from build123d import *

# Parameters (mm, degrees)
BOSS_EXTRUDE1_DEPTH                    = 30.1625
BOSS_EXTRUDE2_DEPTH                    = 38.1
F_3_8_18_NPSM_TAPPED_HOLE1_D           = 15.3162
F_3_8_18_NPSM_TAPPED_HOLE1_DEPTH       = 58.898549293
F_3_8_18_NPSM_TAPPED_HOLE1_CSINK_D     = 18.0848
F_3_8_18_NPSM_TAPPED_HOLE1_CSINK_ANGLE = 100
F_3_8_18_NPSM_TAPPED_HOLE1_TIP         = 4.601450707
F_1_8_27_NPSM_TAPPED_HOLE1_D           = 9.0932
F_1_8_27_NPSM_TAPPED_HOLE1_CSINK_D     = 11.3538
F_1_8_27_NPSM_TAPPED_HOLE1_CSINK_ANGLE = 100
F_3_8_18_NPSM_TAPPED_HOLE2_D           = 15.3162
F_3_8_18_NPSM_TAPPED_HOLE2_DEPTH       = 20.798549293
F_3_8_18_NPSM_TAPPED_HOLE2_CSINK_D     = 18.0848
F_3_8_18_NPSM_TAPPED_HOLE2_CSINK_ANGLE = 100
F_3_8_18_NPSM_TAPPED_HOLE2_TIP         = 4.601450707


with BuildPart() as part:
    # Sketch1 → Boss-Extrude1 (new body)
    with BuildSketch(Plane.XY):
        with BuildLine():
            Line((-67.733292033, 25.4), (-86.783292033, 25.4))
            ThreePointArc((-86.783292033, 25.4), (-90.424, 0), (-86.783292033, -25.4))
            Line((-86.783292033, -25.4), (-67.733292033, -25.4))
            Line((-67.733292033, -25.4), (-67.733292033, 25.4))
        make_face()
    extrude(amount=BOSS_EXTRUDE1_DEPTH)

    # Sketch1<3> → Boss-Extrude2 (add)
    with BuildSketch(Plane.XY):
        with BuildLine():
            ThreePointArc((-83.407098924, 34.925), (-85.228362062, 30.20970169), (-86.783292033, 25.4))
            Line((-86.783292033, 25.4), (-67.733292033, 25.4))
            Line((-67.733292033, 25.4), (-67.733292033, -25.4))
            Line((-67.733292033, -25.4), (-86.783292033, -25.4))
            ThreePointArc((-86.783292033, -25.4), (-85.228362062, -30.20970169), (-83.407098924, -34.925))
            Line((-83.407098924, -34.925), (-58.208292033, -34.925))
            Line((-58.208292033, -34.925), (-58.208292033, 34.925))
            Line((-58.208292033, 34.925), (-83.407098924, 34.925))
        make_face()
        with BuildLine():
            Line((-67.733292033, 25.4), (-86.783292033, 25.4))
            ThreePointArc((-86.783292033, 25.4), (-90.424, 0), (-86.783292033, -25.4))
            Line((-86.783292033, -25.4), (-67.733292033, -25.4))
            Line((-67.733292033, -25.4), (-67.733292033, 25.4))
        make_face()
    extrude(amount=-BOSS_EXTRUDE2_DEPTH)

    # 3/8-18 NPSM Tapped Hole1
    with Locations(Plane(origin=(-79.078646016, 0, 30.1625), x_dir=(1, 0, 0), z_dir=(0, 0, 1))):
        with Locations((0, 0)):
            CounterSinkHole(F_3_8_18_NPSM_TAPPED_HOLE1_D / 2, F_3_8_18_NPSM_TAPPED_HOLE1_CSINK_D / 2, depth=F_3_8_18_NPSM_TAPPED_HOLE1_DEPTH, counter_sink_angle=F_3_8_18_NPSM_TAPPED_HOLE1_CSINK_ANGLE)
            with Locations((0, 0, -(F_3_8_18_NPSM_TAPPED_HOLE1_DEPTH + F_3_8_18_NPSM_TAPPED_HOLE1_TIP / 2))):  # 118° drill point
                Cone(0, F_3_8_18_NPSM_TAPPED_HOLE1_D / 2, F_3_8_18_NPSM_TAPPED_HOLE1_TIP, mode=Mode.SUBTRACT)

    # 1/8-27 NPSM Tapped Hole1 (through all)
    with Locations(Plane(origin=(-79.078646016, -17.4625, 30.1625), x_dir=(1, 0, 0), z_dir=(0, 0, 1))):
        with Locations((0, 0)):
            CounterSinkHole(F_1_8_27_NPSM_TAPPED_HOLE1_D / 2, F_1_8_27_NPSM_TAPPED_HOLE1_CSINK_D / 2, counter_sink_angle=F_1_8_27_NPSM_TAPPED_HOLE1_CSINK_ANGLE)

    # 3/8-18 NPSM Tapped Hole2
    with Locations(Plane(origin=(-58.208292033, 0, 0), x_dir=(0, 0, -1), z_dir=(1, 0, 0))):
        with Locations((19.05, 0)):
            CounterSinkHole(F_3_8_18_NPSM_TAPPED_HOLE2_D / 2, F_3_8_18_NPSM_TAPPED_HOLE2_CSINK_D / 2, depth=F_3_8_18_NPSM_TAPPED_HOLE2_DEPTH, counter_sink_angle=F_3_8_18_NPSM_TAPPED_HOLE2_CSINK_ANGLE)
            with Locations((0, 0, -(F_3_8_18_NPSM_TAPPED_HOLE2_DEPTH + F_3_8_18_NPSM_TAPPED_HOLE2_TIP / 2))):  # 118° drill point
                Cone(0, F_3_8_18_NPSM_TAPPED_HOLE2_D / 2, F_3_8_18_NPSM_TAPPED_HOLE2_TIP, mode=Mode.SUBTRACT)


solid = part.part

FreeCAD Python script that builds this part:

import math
import FreeCAD as App
import Part
import Sketcher
Q = App.Units.Quantity

doc = App.newDocument("Part")
body = doc.addObject("PartDesign::Body", "Body")

# Sketch on XY plane
sketch1 = body.newObject("Sketcher::SketchObject", "Sketch")
sketch1.AttachmentSupport = (doc.getObject("XY_Plane"), [""])
sketch1.MapMode = "FlatFace"
sketch1.addGeometry([
    Part.LineSegment(App.Vector(-68, 25, 0), App.Vector(-87, 25, 0)),
    Part.ArcOfCircle(Part.Circle(App.Vector(0, 0, 0), App.Vector(0, 0, 1), 90), math.radians(164), math.radians(196)),
    Part.LineSegment(App.Vector(-87, -25, 0), App.Vector(-68, -25, 0)),
    Part.LineSegment(App.Vector(-68, -25, 0), App.Vector(-68, 25, 0)),
], False)
sketch1.addConstraint([
    Sketcher.Constraint("Coincident", 0, 2, 1, 1),
    Sketcher.Constraint("Coincident", 1, 2, 2, 1),
    Sketcher.Constraint("Coincident", 2, 2, 3, 1),
    Sketcher.Constraint("Coincident", 3, 2, 0, 1),
    Sketcher.Constraint("Horizontal", 0),
    Sketcher.Constraint("Horizontal", 2),
    Sketcher.Constraint("Vertical", 3),
    Sketcher.Constraint("Coincident", 1, 3, -1, 1),
    Sketcher.Constraint("Vertical", 0, 2, 1, 2),
    Sketcher.Constraint("DistanceY", 3, 1, 3, 2, Q("2 in")),
    Sketcher.Constraint("Radius", 1, Q("3.56 in")),
    Sketcher.Constraint("DistanceX", 0, 2, 0, 1, Q("0.75 in")),
])
pad1 = body.newObject("PartDesign::Pad", "Pad")
pad1.Profile = sketch1
pad1.Length = Q("1.1875 in")

# Sketch on XY plane
sketch2 = body.newObject("Sketcher::SketchObject", "Sketch001")
sketch2.AttachmentSupport = (doc.getObject("XY_Plane"), [""])
sketch2.MapMode = "FlatFace"
sketch2.addGeometry([
    Part.ArcOfCircle(Part.Circle(App.Vector(0, 0, 0), App.Vector(0, 0, 1), 90), math.radians(157.28), math.radians(163.69)),  # 0
    Part.ArcOfCircle(Part.Circle(App.Vector(0, 0, 0), App.Vector(0, 0, 1), 90), math.radians(164), math.radians(196)),  # 1
    Part.ArcOfCircle(Part.Circle(App.Vector(0, 0, 0), App.Vector(0, 0, 1), 90), math.radians(-163.69), math.radians(-157.28)),  # 2
    Part.LineSegment(App.Vector(-83, -35, 0), App.Vector(-58, -35, 0)),  # 3
    Part.LineSegment(App.Vector(-58, -35, 0), App.Vector(-58, 35, 0)),  # 4
    Part.LineSegment(App.Vector(-58, 35, 0), App.Vector(-83, 35, 0)),  # 5
], False)
sketch2.addConstraint([
    Sketcher.Constraint("Tangent", 0, 2, 1, 1),
    Sketcher.Constraint("Tangent", 1, 2, 2, 1),
    Sketcher.Constraint("Coincident", 2, 2, 3, 1),
    Sketcher.Constraint("Coincident", 3, 2, 4, 1),
    Sketcher.Constraint("Coincident", 4, 2, 5, 1),
    Sketcher.Constraint("Coincident", 5, 2, 0, 1),
    Sketcher.Constraint("Horizontal", 3),
    Sketcher.Constraint("Vertical", 4),
    Sketcher.Constraint("Horizontal", 5),
    Sketcher.Constraint("Coincident", 0, 3, -1, 1),
    Sketcher.Constraint("Coincident", 2, 3, -1, 1),
    Sketcher.Constraint("Vertical", 0, 2, 1, 2),
    Sketcher.Constraint("Vertical", 2, 2, 5, 2),
    Sketcher.Constraint("Radius", 0, Q("3.56 in")),
    Sketcher.Constraint("DistanceY", -1, 1, 0, 2, Q("1 in")),
    Sketcher.Constraint("DistanceY", 4, 1, 4, 2, Q("2.75 in")),
    Sketcher.Constraint("DistanceX", 1, 2, 3, 2, Q("1.125 in")),
])
pad2 = body.newObject("PartDesign::Pad", "Pad001")
pad2.Profile = sketch2
pad2.Length = Q("1.5 in")
pad2.Reversed = True

# Sketch on XY plane
sketch3 = body.newObject("Sketcher::SketchObject", "Sketch002")
sketch3.AttachmentSupport = (doc.getObject("XY_Plane"), [""])
sketch3.MapMode = "FlatFace"
sketch3.AttachmentOffset = App.Placement(App.Vector(0, 0, 1.1875 * 25.4), App.Rotation())
sketch3.addGeometry(Part.Circle(App.Vector(-79, 0, 0), App.Vector(0, 0, 1), 8), False)
sketch3.addConstraint([
    Sketcher.Constraint("PointOnObject", 0, 3, -1),
    Sketcher.Constraint("Diameter", 0, Q("0.603 in")),
    Sketcher.Constraint("DistanceX", 0, 3, -1, 1, 79.078646),
])
doc.recompute()
hole = body.newObject("PartDesign::Hole", "Hole")
hole.Profile = sketch3
hole.ThreadType = "None"
hole.Diameter = Q("0.603 in")
hole.DepthType = "Dimension"
hole.Depth = 58.898549
hole.DrillPoint = "Angled"
hole.DrillPointAngle = 118
hole.HoleCutType = "Countersink"
hole.HoleCutDiameter = Q("0.712 in")
hole.HoleCutCountersinkAngle = 100

# Sketch on XY plane
sketch4 = body.newObject("Sketcher::SketchObject", "Sketch003")
sketch4.AttachmentSupport = (doc.getObject("XY_Plane"), [""])
sketch4.MapMode = "FlatFace"
sketch4.AttachmentOffset = App.Placement(App.Vector(0, 0, 1.1875 * 25.4), App.Rotation())
sketch4.addGeometry(Part.Circle(App.Vector(-79.1, -17.5, 0), App.Vector(0, 0, 1), 4.5), False)
sketch4.addConstraint([
    Sketcher.Constraint("Diameter", 0, Q("0.358 in")),
    Sketcher.Constraint("DistanceY", 0, 3, -1, 1, Q("0.6875 in")),
    Sketcher.Constraint("DistanceX", 0, 3, -1, 1, 79.078646),
])
doc.recompute()
hole2 = body.newObject("PartDesign::Hole", "Hole001")
hole2.Profile = sketch4
hole2.ThreadType = "None"
hole2.Diameter = Q("0.358 in")
hole2.DepthType = "ThroughAll"
hole2.HoleCutType = "Countersink"
hole2.HoleCutDiameter = Q("0.447 in")
hole2.HoleCutCountersinkAngle = 100

# Sketch on YZ plane
sketch5 = body.newObject("Sketcher::SketchObject", "Sketch004")
sketch5.AttachmentSupport = (doc.getObject("YZ_Plane"), [""])
sketch5.MapMode = "FlatFace"
sketch5.AttachmentOffset = App.Placement(App.Vector(0, 0, -58.208292), App.Rotation())
sketch5.addGeometry(Part.Circle(App.Vector(0, -19, 0), App.Vector(0, 0, 1), 8), False)
sketch5.addConstraint([
    Sketcher.Constraint("PointOnObject", 0, 3, -2),
    Sketcher.Constraint("Diameter", 0, Q("0.603 in")),
    Sketcher.Constraint("DistanceY", 0, 3, -1, 1, Q("0.75 in")),
])
doc.recompute()
hole3 = body.newObject("PartDesign::Hole", "Hole002")
hole3.Profile = sketch5
hole3.ThreadType = "None"
hole3.Diameter = Q("0.603 in")
hole3.DepthType = "Dimension"
hole3.Depth = 20.798549
hole3.DrillPoint = "Angled"
hole3.DrillPointAngle = 118
hole3.HoleCutType = "Countersink"
hole3.HoleCutDiameter = Q("0.712 in")
hole3.HoleCutCountersinkAngle = 100

doc.recompute()
